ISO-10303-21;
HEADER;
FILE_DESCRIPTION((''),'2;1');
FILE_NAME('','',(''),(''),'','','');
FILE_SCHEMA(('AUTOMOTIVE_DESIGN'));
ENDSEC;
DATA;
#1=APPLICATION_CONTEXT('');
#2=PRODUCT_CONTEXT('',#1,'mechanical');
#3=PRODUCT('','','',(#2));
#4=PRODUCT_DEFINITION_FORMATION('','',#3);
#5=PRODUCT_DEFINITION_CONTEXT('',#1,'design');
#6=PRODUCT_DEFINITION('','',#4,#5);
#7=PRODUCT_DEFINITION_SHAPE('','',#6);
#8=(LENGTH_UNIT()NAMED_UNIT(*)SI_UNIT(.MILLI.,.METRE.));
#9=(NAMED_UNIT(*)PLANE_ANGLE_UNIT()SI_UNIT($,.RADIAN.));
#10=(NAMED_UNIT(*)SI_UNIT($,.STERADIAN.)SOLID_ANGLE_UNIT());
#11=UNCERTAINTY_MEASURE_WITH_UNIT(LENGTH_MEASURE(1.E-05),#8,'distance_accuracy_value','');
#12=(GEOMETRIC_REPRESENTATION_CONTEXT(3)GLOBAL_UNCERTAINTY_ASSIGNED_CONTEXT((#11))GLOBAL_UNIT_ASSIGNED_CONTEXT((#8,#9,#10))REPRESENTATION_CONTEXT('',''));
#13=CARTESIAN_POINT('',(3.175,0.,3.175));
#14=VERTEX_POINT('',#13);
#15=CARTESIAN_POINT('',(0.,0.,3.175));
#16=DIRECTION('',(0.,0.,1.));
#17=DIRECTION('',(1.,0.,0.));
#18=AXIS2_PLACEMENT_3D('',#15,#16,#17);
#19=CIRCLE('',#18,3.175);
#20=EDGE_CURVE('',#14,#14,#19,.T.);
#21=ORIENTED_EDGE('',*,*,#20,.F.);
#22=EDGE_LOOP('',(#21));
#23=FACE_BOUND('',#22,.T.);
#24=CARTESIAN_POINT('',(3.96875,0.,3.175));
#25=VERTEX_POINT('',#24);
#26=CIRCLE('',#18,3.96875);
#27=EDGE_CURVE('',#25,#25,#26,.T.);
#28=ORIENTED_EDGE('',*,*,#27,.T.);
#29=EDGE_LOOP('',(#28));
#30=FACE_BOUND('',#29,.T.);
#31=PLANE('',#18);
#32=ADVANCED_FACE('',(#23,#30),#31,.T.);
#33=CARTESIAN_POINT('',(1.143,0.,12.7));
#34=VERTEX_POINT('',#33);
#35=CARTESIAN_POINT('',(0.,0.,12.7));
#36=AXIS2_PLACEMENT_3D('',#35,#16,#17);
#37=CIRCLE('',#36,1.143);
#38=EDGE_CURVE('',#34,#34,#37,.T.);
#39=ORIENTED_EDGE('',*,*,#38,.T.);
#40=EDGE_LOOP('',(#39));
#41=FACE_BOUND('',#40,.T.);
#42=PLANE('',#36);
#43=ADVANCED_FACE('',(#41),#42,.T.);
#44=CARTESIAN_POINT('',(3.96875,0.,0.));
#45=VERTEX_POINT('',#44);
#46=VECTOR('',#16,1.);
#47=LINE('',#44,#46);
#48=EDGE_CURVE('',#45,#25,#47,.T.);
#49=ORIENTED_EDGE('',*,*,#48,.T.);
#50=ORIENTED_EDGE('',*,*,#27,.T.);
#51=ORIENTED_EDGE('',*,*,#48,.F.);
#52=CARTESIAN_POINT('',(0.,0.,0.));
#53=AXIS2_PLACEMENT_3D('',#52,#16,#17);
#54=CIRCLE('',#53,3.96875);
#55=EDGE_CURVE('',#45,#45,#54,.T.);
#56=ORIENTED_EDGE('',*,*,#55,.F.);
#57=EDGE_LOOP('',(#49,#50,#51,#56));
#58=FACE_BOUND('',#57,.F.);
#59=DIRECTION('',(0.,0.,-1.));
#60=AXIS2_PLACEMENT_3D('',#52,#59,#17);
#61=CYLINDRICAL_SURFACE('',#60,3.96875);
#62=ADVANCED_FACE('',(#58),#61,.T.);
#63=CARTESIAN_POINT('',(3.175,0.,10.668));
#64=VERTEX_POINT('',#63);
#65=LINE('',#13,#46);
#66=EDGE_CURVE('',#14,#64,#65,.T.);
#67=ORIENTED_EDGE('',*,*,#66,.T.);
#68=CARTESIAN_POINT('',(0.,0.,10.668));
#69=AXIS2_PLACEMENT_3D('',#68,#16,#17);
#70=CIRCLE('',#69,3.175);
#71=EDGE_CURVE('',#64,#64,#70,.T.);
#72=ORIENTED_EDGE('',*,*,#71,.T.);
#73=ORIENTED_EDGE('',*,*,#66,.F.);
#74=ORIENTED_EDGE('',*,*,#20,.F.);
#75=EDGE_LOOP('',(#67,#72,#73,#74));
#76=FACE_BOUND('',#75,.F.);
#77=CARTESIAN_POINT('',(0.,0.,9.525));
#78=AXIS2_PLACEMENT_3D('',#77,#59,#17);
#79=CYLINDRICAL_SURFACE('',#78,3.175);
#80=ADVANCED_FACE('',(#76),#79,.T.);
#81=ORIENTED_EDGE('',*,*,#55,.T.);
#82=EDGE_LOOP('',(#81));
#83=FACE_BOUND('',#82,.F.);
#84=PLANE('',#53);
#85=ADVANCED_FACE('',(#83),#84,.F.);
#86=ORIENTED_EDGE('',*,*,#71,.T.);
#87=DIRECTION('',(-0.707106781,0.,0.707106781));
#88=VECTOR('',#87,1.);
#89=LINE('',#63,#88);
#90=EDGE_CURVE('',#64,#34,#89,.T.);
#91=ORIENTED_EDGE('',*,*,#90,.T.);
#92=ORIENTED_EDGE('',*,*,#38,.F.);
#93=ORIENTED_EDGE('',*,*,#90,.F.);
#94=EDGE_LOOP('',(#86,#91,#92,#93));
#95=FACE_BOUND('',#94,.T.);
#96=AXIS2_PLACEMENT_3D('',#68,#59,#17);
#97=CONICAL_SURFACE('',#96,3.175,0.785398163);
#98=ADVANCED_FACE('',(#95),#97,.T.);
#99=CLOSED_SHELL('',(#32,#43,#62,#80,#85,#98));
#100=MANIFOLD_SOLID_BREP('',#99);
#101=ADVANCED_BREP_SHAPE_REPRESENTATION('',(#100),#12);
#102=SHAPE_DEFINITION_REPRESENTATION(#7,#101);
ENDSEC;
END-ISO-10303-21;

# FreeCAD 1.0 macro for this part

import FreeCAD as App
import Part
import Sketcher

V = App.Vector
Q = App.Units.Quantity


def edges_at(feature, points):
    """Names of the edges that pass closest to the given points."""
    edges = feature.Shape.Edges
    near = lambda p: min(range(len(edges)), key=lambda i: edges[i].distToShape(Part.Vertex(*p))[0])
    return sorted({f"Edge{near(p) + 1}" for p in points})

doc = App.newDocument("Part")
body = doc.addObject("PartDesign::Body", "Body")

# Sketch on XY plane
sketch1 = body.newObject("Sketcher::SketchObject", "Sketch")
sketch1.AttachmentSupport = (doc.getObject("XY_Plane"), [""])
sketch1.MapMode = "FlatFace"
sketch1.addGeometry(Part.Circle(V(0, 0, 0), V(0, 0, 1), 3.96875), False)
sketch1.addConstraint(Sketcher.Constraint("Coincident", 0, 3, -1, 1))
sketch1.addConstraint(Sketcher.Constraint("Diameter", 0, Q("0.3125 in")))
pad1 = body.newObject("PartDesign::Pad", "Pad")
pad1.Profile = sketch1
pad1.Length = Q("0.125 in")

# Sketch on XY plane
sketch2 = body.newObject("Sketcher::SketchObject", "Sketch001")
sketch2.AttachmentSupport = (doc.getObject("XY_Plane"), [""])
sketch2.MapMode = "FlatFace"
sketch2.AttachmentOffset = App.Placement(V(0, 0, 0.125 * 25.4), App.Rotation())
sketch2.addGeometry(Part.Circle(V(0, 0, 0), V(0, 0, 1), 3.175), False)
sketch2.addConstraint(Sketcher.Constraint("Coincident", 0, 3, -1, 1))
sketch2.addConstraint(Sketcher.Constraint("Diameter", 0, Q("0.25 in")))
pad2 = body.newObject("PartDesign::Pad", "Pad001")
pad2.Profile = sketch2
pad2.Length = Q("0.25 in")

# Sketch on XY plane
sketch3 = body.newObject("Sketcher::SketchObject", "Sketch002")
sketch3.AttachmentSupport = (doc.getObject("XY_Plane"), [""])
sketch3.MapMode = "FlatFace"
sketch3.AttachmentOffset = App.Placement(V(0, 0, 0.375 * 25.4), App.Rotation())
sketch3.addGeometry(Part.Circle(V(0, 0, 0), V(0, 0, 1), 3.175), False)
sketch3.addConstraint(Sketcher.Constraint("Coincident", 0, 3, -1, 1))
sketch3.addConstraint(Sketcher.Constraint("Diameter", 0, Q("0.25 in")))
pad3 = body.newObject("PartDesign::Pad", "Pad002")
pad3.Profile = sketch3
pad3.Length = Q("0.125 in")
doc.recompute()

chamfer = body.newObject("PartDesign::Chamfer", "Chamfer")
chamfer.Base = (pad3, edges_at(pad3, [(-3.175, 0, 12.7), (-3.175, 0, 12.7)]))
chamfer.Size = Q("0.08 in")

doc.recompute()
